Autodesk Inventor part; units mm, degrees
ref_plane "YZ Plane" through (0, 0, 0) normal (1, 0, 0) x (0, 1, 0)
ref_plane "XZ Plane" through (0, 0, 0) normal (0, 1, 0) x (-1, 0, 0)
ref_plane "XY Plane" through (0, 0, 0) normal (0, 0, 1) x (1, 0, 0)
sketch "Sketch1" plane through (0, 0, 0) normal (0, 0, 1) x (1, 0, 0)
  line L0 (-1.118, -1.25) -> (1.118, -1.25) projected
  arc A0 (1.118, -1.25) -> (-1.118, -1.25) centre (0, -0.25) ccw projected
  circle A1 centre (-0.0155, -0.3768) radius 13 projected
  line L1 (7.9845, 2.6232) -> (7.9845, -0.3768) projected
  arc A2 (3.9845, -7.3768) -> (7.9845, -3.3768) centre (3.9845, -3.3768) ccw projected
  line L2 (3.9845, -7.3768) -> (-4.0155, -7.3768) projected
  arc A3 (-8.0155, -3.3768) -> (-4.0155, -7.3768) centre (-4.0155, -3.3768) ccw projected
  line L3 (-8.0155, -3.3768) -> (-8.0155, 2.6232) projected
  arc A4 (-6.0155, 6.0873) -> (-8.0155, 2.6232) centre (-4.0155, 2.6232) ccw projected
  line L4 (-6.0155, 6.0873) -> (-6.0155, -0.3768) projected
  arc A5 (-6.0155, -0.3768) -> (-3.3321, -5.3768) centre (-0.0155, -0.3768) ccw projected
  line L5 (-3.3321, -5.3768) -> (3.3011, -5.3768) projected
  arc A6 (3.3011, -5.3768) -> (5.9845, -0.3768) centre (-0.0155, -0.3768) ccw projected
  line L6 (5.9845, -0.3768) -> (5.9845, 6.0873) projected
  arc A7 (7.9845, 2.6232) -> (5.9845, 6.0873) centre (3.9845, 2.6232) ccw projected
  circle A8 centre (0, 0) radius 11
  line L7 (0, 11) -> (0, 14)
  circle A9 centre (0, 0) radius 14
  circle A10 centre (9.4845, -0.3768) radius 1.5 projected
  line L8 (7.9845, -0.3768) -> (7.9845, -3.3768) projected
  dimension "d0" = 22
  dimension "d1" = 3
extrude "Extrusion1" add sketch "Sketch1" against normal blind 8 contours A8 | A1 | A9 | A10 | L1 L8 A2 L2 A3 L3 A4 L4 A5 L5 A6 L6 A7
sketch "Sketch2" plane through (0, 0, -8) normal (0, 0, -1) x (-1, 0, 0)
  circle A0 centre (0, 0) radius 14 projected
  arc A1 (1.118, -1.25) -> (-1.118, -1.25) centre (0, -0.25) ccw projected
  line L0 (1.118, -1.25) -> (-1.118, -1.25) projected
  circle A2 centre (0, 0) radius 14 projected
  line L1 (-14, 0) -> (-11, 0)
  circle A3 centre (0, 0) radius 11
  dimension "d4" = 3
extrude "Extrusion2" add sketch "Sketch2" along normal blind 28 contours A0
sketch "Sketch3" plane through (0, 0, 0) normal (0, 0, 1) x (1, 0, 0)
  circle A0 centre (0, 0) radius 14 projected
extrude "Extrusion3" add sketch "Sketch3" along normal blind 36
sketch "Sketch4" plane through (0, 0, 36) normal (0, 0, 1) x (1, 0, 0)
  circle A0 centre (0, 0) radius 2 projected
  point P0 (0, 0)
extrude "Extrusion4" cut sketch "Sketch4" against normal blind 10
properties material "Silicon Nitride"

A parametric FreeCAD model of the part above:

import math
import FreeCAD as App
import Part
import Sketcher
from FreeCAD import Vector
Q = App.Units.Quantity

doc = App.newDocument("Part")
body = doc.addObject("PartDesign::Body", "Body")

sketch1 = doc.addObject("Sketcher::SketchObject", "Sketch")
body.addObject(sketch1)
sketch1.AttachmentSupport = (doc.XY_Plane, [""])
sketch1.MapMode = "FlatFace"
sketch1.addGeometry([
    Part.Circle(Vector(0, 0, 0), Vector(0, 0, 1), 14),
    Part.LineSegment(Vector(1.118, -1.25, 0), Vector(-1.118, -1.25, 0)),
    Part.ArcOfCircle(Part.Circle(Vector(0, -0.25, 0), Vector(0, 0, 1), 1.499975), math.radians(-41.81118), math.radians(221.81118)),
], False)
sketch1.addConstraint([
    Sketcher.Constraint("Coincident", 1, 1, 2, 1),
    Sketcher.Constraint("Coincident", 2, 2, 1, 2),
    Sketcher.Constraint("Horizontal", 1),
    Sketcher.Constraint("Coincident", 0, 3, -1, 1),
    Sketcher.Constraint("PointOnObject", 2, 3, -2),
    Sketcher.Constraint("Radius", 2, Q("1.5 mm")),
    Sketcher.Constraint("Diameter", 0, Q("28 mm")),
    Sketcher.Constraint("DistanceY", 1, 1, 2, 3, Q("1 mm")),
    Sketcher.Constraint("DistanceY", 2, 3, -1, 1, Q("0.25 mm")),
])
pad1 = doc.addObject("PartDesign::Pad", "Pad")
body.addObject(pad1)
pad1.Profile = sketch1
pad1.Length = 8
pad1.Reversed = True

sketch2 = doc.addObject("Sketcher::SketchObject", "Sketch001")
body.addObject(sketch2)
sketch2.AttachmentSupport = (doc.XY_Plane, [""])
sketch2.MapMode = "FlatFace"
sketch2.AttachmentOffset = App.Placement(Vector(0, 0, -8), App.Rotation())
sketch2.addGeometry([
    Part.Circle(Vector(0, 0, 0), Vector(0, 0, 1), 14),
    Part.Circle(Vector(0, 0, 0), Vector(0, 0, 1), 11),
], False)
sketch2.addConstraint([
    Sketcher.Constraint("Coincident", 0, 3, -1, 1),
    Sketcher.Constraint("Coincident", 1, 3, -1, 1),
    Sketcher.Constraint("Diameter", 0, Q("28 mm")),
    Sketcher.Constraint("Diameter", 1, Q("22 mm")),
])
pad2 = doc.addObject("PartDesign::Pad", "Pad001")
body.addObject(pad2)
pad2.Profile = sketch2
pad2.Length = 28
pad2.Reversed = True

sketch3 = doc.addObject("Sketcher::SketchObject", "Sketch002")
body.addObject(sketch3)
sketch3.AttachmentSupport = (doc.XY_Plane, [""])
sketch3.MapMode = "FlatFace"
sketch3.addGeometry(Part.Circle(Vector(0, 0, 0), Vector(0, 0, 1), 14), False)
sketch3.addConstraint([
    Sketcher.Constraint("Coincident", 0, 3, -1, 1),
    Sketcher.Constraint("Diameter", 0, Q("28 mm")),
])
pad3 = doc.addObject("PartDesign::Pad", "Pad002")
body.addObject(pad3)
pad3.Profile = sketch3
pad3.Length = 36

sketch4 = doc.addObject("Sketcher::SketchObject", "Sketch003")
body.addObject(sketch4)
sketch4.AttachmentSupport = (doc.XY_Plane, [""])
sketch4.MapMode = "FlatFace"
sketch4.AttachmentOffset = App.Placement(Vector(0, 0, 36), App.Rotation())
sketch4.addGeometry(Part.Circle(Vector(0, 0, 0), Vector(0, 0, 1), 2), False)
sketch4.addConstraint([
    Sketcher.Constraint("Coincident", 0, 3, -1, 1),
    Sketcher.Constraint("Diameter", 0, Q("4 mm")),
])
pocket1 = doc.addObject("PartDesign::Pocket", "Pocket")
body.addObject(pocket1)
pocket1.Profile = sketch4
pocket1.Length = 10

doc.recompute()
